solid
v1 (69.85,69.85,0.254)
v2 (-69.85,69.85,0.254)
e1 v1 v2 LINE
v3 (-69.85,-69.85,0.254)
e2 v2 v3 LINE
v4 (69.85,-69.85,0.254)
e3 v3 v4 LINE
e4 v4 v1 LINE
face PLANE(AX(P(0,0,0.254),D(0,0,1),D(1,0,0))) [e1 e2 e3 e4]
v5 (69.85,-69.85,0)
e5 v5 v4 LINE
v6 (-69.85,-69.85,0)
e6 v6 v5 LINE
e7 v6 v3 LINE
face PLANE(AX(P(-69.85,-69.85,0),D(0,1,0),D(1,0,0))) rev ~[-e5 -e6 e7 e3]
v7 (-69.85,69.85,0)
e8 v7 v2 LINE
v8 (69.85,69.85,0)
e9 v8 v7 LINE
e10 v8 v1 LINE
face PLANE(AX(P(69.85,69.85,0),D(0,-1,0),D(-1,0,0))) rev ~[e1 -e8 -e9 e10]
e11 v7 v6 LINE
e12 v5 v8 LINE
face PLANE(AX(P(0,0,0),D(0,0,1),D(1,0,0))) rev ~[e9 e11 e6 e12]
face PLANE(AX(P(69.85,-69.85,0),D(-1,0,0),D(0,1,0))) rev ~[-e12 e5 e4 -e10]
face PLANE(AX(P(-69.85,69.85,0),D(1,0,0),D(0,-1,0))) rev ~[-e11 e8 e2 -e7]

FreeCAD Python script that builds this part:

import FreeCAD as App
import Part
import Sketcher
from FreeCAD import Vector
Q = App.Units.Quantity

doc = App.newDocument("Part")
body = doc.addObject("PartDesign::Body", "Body")

# Sketch on XY plane
sketch1 = body.newObject("Sketcher::SketchObject", "Sketch")
sketch1.AttachmentSupport = (doc.getObject("XY_Plane"), [""])
sketch1.MapMode = "FlatFace"
sketch1.addGeometry(Part.LineSegment(Vector(-70, 70, 0), Vector(-70, -70, 0)), False)
sketch1.addGeometry(Part.LineSegment(Vector(-70, -70, 0), Vector(70, -70, 0)), False)
sketch1.addGeometry(Part.LineSegment(Vector(70, -70, 0), Vector(70, 70, 0)), False)
sketch1.addGeometry(Part.LineSegment(Vector(70, 70, 0), Vector(-70, 70, 0)), False)
sketch1.addConstraint(Sketcher.Constraint("Coincident", 0, 2, 1, 1))
sketch1.addConstraint(Sketcher.Constraint("Coincident", 1, 2, 2, 1))
sketch1.addConstraint(Sketcher.Constraint("Coincident", 2, 2, 3, 1))
sketch1.addConstraint(Sketcher.Constraint("Coincident", 3, 2, 0, 1))
sketch1.addConstraint(Sketcher.Constraint("Vertical", 0))
sketch1.addConstraint(Sketcher.Constraint("Horizontal", 1))
sketch1.addConstraint(Sketcher.Constraint("Vertical", 2))
sketch1.addConstraint(Sketcher.Constraint("Horizontal", 3))
sketch1.addConstraint(Sketcher.Constraint("Symmetric", 0, 2, 2, 2, -1, 1))
sketch1.addConstraint(Sketcher.Constraint("Equal", 3, 0))
sketch1.addConstraint(Sketcher.Constraint("DistanceX", 1, 1, 1, 2, Q("5.5 in")))
pad1 = body.newObject("PartDesign::Pad", "Pad")
pad1.Profile = sketch1
pad1.Length = Q("0.01 in")

doc.recompute()
